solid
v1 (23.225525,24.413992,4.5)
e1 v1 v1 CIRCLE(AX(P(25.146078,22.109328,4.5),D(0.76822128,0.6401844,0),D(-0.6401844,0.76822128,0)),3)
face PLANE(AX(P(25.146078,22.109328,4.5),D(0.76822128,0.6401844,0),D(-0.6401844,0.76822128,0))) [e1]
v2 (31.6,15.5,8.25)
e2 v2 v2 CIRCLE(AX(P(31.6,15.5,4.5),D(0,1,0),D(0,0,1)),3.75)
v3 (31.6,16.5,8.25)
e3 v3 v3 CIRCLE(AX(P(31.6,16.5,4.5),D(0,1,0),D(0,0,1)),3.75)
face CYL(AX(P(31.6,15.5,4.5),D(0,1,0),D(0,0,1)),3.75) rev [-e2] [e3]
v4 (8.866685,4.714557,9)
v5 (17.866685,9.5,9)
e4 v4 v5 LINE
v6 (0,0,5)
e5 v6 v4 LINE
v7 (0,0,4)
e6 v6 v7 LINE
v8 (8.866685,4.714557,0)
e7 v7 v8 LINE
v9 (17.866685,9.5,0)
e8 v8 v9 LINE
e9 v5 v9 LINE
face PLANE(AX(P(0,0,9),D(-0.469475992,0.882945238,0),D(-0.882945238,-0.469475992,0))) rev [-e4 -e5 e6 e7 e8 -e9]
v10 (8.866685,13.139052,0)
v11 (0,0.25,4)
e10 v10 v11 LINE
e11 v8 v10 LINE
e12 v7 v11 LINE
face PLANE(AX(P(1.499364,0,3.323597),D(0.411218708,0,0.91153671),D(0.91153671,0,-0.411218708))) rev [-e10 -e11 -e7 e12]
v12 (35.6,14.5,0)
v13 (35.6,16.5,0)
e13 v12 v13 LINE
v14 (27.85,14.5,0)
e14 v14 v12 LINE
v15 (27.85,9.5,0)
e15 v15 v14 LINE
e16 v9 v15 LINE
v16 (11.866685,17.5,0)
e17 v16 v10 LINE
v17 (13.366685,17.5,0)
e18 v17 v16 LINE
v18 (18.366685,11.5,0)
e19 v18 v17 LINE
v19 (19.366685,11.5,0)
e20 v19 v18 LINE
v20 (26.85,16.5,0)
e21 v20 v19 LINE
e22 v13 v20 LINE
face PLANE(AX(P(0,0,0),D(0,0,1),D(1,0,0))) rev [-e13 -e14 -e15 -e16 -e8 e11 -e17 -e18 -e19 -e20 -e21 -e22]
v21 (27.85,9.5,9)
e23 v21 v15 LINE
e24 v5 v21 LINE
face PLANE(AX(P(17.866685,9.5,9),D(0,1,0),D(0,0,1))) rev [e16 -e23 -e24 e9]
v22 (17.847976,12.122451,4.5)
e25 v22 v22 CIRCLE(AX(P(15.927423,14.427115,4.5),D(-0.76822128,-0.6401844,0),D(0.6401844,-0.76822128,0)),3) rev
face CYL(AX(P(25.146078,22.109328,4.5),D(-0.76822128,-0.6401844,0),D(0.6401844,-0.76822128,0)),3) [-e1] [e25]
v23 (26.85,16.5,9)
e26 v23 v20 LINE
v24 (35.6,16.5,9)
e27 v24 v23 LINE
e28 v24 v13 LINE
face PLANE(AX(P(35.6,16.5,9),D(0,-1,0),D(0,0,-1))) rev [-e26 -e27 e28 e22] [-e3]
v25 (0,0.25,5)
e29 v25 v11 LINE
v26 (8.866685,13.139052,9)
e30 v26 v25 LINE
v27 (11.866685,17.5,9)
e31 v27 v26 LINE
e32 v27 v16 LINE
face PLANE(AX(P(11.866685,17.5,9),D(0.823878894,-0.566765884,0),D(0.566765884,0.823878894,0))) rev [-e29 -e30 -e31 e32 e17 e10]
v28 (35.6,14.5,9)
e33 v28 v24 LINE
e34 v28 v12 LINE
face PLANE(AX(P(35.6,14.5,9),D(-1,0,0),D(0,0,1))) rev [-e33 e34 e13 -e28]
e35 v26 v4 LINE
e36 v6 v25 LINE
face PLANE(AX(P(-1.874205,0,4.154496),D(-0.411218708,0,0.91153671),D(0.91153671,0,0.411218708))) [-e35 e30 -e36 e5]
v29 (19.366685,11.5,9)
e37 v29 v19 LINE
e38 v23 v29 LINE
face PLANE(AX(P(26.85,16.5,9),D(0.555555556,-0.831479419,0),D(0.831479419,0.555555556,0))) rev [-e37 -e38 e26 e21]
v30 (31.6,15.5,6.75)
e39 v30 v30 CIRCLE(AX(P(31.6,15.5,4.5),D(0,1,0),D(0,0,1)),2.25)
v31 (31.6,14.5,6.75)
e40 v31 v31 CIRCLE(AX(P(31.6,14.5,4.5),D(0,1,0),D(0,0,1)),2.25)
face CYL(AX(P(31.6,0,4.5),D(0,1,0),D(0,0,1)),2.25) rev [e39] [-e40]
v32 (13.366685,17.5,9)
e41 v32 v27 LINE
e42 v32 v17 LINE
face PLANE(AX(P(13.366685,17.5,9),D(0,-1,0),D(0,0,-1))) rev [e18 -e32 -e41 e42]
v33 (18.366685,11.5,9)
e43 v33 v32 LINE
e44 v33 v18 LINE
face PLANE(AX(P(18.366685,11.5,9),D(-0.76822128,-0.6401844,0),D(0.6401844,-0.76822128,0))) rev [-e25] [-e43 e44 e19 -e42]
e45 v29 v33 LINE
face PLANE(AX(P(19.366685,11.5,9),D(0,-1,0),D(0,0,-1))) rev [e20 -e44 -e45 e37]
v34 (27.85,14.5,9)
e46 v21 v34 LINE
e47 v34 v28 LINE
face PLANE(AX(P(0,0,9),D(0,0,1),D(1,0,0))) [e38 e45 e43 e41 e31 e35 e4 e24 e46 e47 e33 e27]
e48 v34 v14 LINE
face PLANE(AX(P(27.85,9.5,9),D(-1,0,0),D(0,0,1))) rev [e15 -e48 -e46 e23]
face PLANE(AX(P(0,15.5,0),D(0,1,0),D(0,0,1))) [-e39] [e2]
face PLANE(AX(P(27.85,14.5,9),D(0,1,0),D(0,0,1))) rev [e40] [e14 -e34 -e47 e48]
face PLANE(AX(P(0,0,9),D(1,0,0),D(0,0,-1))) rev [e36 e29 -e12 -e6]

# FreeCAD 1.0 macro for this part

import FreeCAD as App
import Part
import Sketcher
from FreeCAD import Vector
Q = App.Units.Quantity


def add_polygon(sketch, points):
    """Adds a closed chain of lines whose ends are joined by coincident constraints."""
    first, n = sketch.GeometryCount, len(points)
    for a, b in zip(points, points[1:] + points[:1]):
        sketch.addGeometry(Part.LineSegment(App.Vector(*a, 0), App.Vector(*b, 0)), False)
    for i in range(n):
        sketch.addConstraint(Sketcher.Constraint("Coincident", first + i, 2, first + (i + 1) % n, 1))

doc = App.newDocument("Part")
params = doc.addObject("Spreadsheet::Sheet", "Params")
for row, (alias, value) in enumerate([
    ("sketch1_width", "1 mm"),
    ("sketch1_height", "5 mm"),
    ("sketch1_height2", "2 mm"),
    ("sketch1_length", "9 mm"),
    ("sketch1_width2", "1.5 mm"),
    ("pad1_length", "9 mm"),
    ("sketch2_diameter", "4.5 mm"),
    ("sketch2_height", "4 mm"),
    ("pocket1_length", "16.5 mm"),
    ("sketch3_diameter", "7.5 mm"),
    ("sketch3_diameter2", "4.5 mm"),
    ("pocket2_length", "1 mm"),
    ("sketch4_diameter", "6 mm"),
    ("pad2_length", "12 mm"),
], start=1):
    params.set(f"A{row}", alias)
    params.set(f"B{row}", "=" + value)
    params.setAlias(f"B{row}", alias)

body = doc.addObject("PartDesign::Body", "Body")

# Sketch on XY plane
sketch1 = body.newObject("Sketcher::SketchObject", "Sketch")
sketch1.AttachmentSupport = (doc.getObject("XY_Plane"), [""])
sketch1.MapMode = "FlatFace"
add_polygon(sketch1, [(0, 0), (17.87, 9.5), (27.85, 9.5), (27.85, 14.5), (35.6, 14.5), (35.6, 16.5), (26.85, 16.5), (19.37, 11.5), (18.37, 11.5), (13.37, 17.5), (11.87, 17.5), (0, 0.25)])  # lines 0-11
sketch1.addConstraint([
    Sketcher.Constraint("Horizontal", 1),
    Sketcher.Constraint("Vertical", 2),
    Sketcher.Constraint("Horizontal", 3),
    Sketcher.Constraint("Vertical", 4),
    Sketcher.Constraint("Horizontal", 5),
    Sketcher.Constraint("Horizontal", 7),
    Sketcher.Constraint("Horizontal", 9),
    Sketcher.Constraint("Vertical", 11),
    Sketcher.Constraint("Coincident", 11, 2, -1, 1),
    Sketcher.Constraint("DistanceX", 7, 2, 7, 1, Q("1 mm")),
    Sketcher.Constraint("DistanceY", 2, 1, 2, 2, Q("5 mm")),
    Sketcher.Constraint("DistanceY", 4, 1, 4, 2, Q("2 mm")),
    Sketcher.Constraint("Distance", 6, Q("9 mm")),
    Sketcher.Constraint("DistanceX", 9, 2, 9, 1, Q("1.5 mm")),
    Sketcher.Constraint("DistanceX", 5, 2, 2, 2, Q("1 mm")),
    Sketcher.Constraint("DistanceY", 0, 2, 6, 2, Q("2 mm")),
    Sketcher.Constraint("DistanceX", 8, 2, 7, 2, Q("5 mm")),
    Sketcher.Constraint("DistanceY", 7, 2, 8, 2, Q("6 mm")),
    Sketcher.Constraint("DistanceX", 9, 2, 0, 2, Q("6 mm")),
    Sketcher.Constraint("DistanceX", 3, 1, 3, 2, Q("7.75 mm")),
    Sketcher.Constraint("DistanceY", 11, 2, 11, 1, Q("0.25 mm")),
    Sketcher.Constraint("DistanceY", -1, 1, 0, 2, Q("9.5 mm")),
    Sketcher.Constraint("DistanceX", -1, 1, 3, 2, Q("35.6 mm")),
])
sketch1.setExpression("Constraints[21]", "Params.sketch1_width")
sketch1.setExpression("Constraints[22]", "Params.sketch1_height")
sketch1.setExpression("Constraints[23]", "Params.sketch1_height2")
sketch1.setExpression("Constraints[24]", "Params.sketch1_length")
sketch1.setExpression("Constraints[25]", "Params.sketch1_width2")
pad1 = body.newObject("PartDesign::Pad", "Pad")
pad1.Profile = sketch1
pad1.setExpression("Length", "Params.pad1_length")

# Sketch on XZ plane
sketch2 = body.newObject("Sketcher::SketchObject", "Sketch001")
sketch2.AttachmentSupport = (doc.getObject("XZ_Plane"), [""])
sketch2.MapMode = "FlatFace"
sketch2.AttachmentOffset = App.Placement(Vector(0, 0, -16.5), App.Rotation())
sketch2.addGeometry(Part.Circle(Vector(31.6, 4.5, 0), Vector(0, 0, 1), 2.2), False)  # 0
add_polygon(sketch2, [(0, 0), (0, 4), (8.9, 0)])  # lines 1-3
add_polygon(sketch2, [(8.9, 9), (0, 5), (0, 9)])  # lines 4-6
sketch2.addConstraint([
    Sketcher.Constraint("Vertical", 1),
    Sketcher.Constraint("Horizontal", 3),
    Sketcher.Constraint("Vertical", 5),
    Sketcher.Constraint("Horizontal", 6),
    Sketcher.Constraint("Coincident", 3, 2, -1, 1),
    Sketcher.Constraint("PointOnObject", 4, 2, -2),
    Sketcher.Constraint("Vertical", 2, 2, 6, 2),
    Sketcher.Constraint("Equal", 1, 5),
    Sketcher.Constraint("Diameter", 0, Q("4.5 mm")),
    Sketcher.Constraint("DistanceY", 1, 1, 1, 2, Q("4 mm")),
    Sketcher.Constraint("DistanceY", -1, 1, 4, 2, Q("5 mm")),
    Sketcher.Constraint("DistanceX", -1, 1, 0, 3, Q("31.6 mm")),
    Sketcher.Constraint("DistanceY", -1, 1, 0, 3, Q("4.5 mm")),
    Sketcher.Constraint("DistanceX", 3, 2, 3, 1, Q("8.866685 mm")),
])
sketch2.setExpression("Constraints[14]", "Params.sketch2_diameter")
sketch2.setExpression("Constraints[15]", "Params.sketch2_height")
pocket1 = body.newObject("PartDesign::Pocket", "Pocket")
pocket1.Profile = sketch2
pocket1.setExpression("Length", "Params.pocket1_length")
pocket1.Reversed = True

# Sketch on XZ plane
sketch3 = body.newObject("Sketcher::SketchObject", "Sketch002")
sketch3.AttachmentSupport = (doc.getObject("XZ_Plane"), [""])
sketch3.MapMode = "FlatFace"
sketch3.AttachmentOffset = App.Placement(Vector(0, 0, -16.5), App.Rotation())
sketch3.addGeometry([
    Part.Circle(Vector(31.6, 4.5, 0), Vector(0, 0, 1), 3.8),
    Part.Circle(Vector(31.6, 4.5, 0), Vector(0, 0, 1), 2.2),
], False)
sketch3.addConstraint([
    Sketcher.Constraint("Coincident", 1, 3, 0, 3),
    Sketcher.Constraint("Diameter", 0, Q("7.5 mm")),
    Sketcher.Constraint("Diameter", 1, Q("4.5 mm")),
    Sketcher.Constraint("DistanceX", -1, 1, 0, 3, Q("31.6 mm")),
    Sketcher.Constraint("DistanceY", -1, 1, 0, 3, Q("4.5 mm")),
])
sketch3.setExpression("Constraints[1]", "Params.sketch3_diameter")
sketch3.setExpression("Constraints[2]", "Params.sketch3_diameter2")
pocket2 = body.newObject("PartDesign::Pocket", "Pocket001")
pocket2.Profile = sketch3
pocket2.setExpression("Length", "Params.pocket2_length")
pocket2.Reversed = True

# Sketch on an angled plane
sketch4 = body.newObject("Sketcher::SketchObject", "Sketch003")
sketch4.Placement = App.Placement(Vector(16.495093, 13.745911, 0), App.Rotation(Vector(0, 0, -1), Vector(-0.6401844, 0.76822128, 0), Vector(0.76822128, 0.6401844, 0), "ZXY"))
sketch4.addGeometry(Part.Circle(Vector(-4.5, 0.9, 0), Vector(0, 0, 1), 3), False)
sketch4.addConstraint([
    Sketcher.Constraint("Diameter", 0, Q("6 mm")),
    Sketcher.Constraint("DistanceX", 0, 3, -1, 1, Q("4.5 mm")),
    Sketcher.Constraint("DistanceY", -1, 1, 0, 3, Q("0.886729 mm")),
])
sketch4.setExpression("Constraints[0]", "Params.sketch4_diameter")
pad2 = body.newObject("PartDesign::Pad", "Pad001")
pad2.Profile = sketch4
pad2.setExpression("Length", "Params.pad2_length")

doc.recompute()
